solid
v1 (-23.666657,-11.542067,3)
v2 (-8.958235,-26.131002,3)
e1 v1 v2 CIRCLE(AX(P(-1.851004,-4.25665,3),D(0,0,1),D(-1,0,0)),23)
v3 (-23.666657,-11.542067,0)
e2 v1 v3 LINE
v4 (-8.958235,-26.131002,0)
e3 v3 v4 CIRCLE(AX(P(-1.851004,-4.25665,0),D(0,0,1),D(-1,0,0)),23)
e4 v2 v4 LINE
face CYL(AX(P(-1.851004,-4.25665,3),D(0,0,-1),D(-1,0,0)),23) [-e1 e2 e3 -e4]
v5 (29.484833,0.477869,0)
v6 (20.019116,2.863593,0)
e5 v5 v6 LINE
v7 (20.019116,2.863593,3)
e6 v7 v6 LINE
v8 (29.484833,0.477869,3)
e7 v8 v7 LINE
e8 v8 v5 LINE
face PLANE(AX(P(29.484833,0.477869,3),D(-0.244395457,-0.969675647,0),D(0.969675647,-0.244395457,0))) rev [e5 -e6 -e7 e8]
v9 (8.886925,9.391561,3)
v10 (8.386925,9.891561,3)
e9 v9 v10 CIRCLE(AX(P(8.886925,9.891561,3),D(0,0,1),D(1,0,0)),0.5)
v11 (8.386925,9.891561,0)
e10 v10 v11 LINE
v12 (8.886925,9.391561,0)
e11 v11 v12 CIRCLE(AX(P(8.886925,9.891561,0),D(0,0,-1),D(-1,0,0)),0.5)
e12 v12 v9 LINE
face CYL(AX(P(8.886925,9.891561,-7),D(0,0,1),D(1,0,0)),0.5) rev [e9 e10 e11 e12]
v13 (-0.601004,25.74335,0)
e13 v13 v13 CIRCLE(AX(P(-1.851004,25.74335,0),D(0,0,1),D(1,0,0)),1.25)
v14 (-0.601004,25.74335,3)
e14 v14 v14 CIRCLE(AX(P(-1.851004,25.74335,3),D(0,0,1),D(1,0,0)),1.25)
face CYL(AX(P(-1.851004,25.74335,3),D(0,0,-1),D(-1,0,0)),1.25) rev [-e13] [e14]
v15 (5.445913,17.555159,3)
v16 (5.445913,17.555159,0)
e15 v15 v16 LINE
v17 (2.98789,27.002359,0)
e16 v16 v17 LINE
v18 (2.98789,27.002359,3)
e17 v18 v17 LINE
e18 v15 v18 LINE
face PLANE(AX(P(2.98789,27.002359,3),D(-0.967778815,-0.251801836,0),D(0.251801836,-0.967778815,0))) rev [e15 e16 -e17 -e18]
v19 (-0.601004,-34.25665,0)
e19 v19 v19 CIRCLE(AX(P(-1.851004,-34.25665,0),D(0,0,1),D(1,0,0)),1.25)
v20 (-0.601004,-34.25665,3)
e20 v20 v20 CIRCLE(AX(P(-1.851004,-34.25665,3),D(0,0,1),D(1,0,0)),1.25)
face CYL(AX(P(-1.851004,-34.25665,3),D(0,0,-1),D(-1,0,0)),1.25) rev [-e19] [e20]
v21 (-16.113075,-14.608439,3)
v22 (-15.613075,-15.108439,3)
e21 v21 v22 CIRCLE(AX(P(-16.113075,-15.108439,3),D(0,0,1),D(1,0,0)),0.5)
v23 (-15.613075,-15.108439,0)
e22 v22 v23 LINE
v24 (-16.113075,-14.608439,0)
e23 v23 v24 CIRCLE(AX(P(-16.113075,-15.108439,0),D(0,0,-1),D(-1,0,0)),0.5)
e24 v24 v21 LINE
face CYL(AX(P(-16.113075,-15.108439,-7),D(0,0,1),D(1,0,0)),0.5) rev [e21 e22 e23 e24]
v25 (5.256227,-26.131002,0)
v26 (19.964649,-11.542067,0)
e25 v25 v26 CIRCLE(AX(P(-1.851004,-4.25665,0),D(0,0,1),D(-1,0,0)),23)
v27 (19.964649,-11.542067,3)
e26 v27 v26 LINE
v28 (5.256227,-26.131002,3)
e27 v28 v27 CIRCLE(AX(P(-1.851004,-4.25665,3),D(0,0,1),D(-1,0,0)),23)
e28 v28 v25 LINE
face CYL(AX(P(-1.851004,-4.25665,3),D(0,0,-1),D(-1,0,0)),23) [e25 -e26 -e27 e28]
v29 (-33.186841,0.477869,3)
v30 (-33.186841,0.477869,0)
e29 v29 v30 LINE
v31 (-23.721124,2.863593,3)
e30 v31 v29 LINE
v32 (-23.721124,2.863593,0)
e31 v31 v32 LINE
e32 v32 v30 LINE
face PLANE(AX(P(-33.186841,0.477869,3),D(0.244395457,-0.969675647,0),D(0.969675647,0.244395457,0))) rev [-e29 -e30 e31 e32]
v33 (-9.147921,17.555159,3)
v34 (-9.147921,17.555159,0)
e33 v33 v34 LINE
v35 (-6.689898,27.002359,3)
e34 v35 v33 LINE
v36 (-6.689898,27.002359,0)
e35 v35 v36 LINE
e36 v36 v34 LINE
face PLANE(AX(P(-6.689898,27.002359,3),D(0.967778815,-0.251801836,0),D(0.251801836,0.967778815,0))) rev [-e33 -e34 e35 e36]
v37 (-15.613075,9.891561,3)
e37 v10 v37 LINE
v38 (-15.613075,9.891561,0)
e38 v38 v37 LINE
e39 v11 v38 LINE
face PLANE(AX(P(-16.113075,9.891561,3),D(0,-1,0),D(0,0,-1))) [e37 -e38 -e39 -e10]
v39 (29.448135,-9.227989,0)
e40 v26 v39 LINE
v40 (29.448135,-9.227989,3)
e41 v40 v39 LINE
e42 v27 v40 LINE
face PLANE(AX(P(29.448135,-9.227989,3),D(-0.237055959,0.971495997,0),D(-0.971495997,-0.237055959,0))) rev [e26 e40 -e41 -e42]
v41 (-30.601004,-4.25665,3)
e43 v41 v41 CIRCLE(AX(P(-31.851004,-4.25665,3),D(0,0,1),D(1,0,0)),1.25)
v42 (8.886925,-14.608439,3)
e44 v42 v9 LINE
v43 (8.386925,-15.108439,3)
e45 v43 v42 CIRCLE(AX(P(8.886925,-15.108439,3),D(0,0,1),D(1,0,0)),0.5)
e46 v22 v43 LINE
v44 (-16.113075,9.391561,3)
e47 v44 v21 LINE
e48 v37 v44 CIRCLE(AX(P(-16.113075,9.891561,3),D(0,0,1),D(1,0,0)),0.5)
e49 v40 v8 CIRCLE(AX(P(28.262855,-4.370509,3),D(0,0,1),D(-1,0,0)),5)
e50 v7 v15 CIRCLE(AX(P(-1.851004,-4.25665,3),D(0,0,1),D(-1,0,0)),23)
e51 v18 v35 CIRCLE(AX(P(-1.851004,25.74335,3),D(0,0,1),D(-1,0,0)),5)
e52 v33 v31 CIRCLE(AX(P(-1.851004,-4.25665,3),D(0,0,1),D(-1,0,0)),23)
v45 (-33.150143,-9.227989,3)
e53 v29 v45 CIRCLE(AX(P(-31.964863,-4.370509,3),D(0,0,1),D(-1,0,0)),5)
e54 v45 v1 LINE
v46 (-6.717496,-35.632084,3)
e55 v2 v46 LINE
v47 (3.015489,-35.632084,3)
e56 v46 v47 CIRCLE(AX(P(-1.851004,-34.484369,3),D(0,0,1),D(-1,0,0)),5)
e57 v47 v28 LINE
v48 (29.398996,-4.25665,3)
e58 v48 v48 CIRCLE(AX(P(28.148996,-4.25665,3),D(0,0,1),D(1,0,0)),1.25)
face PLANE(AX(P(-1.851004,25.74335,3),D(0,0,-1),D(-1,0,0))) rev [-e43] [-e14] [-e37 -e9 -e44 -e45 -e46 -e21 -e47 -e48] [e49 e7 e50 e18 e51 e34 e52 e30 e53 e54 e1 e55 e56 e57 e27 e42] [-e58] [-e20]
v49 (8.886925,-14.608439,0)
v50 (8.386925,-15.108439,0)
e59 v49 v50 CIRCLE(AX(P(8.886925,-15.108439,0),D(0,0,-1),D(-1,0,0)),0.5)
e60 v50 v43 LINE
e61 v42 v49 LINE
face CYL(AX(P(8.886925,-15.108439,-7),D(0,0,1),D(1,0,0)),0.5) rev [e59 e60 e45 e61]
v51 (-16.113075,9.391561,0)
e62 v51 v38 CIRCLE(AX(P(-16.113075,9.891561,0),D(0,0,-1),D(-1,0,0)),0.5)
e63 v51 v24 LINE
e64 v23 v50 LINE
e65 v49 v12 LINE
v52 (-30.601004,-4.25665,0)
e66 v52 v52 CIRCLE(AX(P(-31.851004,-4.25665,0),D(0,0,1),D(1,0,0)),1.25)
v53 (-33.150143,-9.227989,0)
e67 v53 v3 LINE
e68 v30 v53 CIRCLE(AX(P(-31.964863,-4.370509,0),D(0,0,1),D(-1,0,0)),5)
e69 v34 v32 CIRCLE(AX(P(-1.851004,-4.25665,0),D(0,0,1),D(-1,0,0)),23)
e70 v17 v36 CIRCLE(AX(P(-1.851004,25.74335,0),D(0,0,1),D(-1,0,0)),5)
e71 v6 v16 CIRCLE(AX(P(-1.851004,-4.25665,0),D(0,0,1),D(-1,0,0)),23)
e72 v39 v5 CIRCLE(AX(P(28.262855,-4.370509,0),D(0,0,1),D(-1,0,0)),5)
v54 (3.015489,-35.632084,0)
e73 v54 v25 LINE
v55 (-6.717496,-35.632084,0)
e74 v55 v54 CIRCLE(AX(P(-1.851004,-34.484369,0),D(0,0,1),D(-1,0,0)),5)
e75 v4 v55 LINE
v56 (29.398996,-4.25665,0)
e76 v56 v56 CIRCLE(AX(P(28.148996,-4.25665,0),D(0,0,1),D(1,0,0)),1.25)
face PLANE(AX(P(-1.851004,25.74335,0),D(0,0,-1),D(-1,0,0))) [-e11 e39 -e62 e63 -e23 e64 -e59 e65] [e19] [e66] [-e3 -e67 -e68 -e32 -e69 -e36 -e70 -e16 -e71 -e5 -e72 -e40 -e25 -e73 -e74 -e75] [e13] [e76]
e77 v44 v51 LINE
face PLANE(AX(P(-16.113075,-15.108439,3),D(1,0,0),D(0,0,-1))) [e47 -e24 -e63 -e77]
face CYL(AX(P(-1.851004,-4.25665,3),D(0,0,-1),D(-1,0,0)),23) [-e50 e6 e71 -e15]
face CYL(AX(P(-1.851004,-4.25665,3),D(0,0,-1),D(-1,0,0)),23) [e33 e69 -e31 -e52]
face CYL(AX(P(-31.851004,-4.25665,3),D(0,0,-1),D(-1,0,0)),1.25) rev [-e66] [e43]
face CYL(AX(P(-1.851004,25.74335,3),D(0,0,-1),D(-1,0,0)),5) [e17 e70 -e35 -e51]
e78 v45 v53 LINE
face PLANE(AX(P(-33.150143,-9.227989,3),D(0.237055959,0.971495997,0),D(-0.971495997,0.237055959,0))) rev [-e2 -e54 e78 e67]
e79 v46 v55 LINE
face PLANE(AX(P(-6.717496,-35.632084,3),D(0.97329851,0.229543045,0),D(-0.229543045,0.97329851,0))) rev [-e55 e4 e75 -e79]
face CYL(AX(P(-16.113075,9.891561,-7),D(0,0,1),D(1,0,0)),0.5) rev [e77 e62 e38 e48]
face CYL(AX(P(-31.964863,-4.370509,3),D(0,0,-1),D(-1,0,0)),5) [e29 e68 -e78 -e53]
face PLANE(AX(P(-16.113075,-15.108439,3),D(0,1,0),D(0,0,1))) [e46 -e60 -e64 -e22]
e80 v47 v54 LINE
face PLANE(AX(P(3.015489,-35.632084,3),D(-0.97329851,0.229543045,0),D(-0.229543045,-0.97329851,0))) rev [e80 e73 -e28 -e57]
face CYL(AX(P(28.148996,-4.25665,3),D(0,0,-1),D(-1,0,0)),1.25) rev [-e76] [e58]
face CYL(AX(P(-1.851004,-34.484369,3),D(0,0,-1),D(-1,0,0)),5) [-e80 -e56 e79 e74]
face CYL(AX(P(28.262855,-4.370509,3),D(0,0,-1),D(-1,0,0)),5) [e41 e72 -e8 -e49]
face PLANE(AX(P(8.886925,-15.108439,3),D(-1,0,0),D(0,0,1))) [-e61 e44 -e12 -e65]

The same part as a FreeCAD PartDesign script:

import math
import FreeCAD as App
import Part
import Sketcher
from FreeCAD import Vector
Q = App.Units.Quantity


def add_polygon(sketch, points):
    """Adds a closed chain of lines whose ends are joined by coincident constraints."""
    first, n = sketch.GeometryCount, len(points)
    for a, b in zip(points, points[1:] + points[:1]):
        sketch.addGeometry(Part.LineSegment(App.Vector(*a, 0), App.Vector(*b, 0)), False)
    for i in range(n):
        sketch.addConstraint(Sketcher.Constraint("Coincident", first + i, 2, first + (i + 1) % n, 1))

doc = App.newDocument("Part")
body = doc.addObject("PartDesign::Body", "Body")

sketch1 = body.newObject("Sketcher::SketchObject", "Sketch")
sketch1.AttachmentSupport = (doc.getObject("XY_Plane"), [""])
sketch1.MapMode = "FlatFace"
sketch1.addGeometry(Part.LineSegment(Vector(-23.721124, 2.863593, 0), Vector(-33.186841, 0.477869, 0)), False)
sketch1.addGeometry(Part.ArcOfCircle(Part.Circle(Vector(-31.964863, -4.370509, 0), Vector(0, 0, 1), 5), math.radians(104.14611), math.radians(256.287154)), False)
sketch1.addGeometry(Part.LineSegment(Vector(-33.150143, -9.227989, 0), Vector(-23.666657, -11.542067, 0)), False)
sketch1.addGeometry(Part.ArcOfCircle(Part.Circle(Vector(-1.851004, -4.25665, 0), Vector(0, 0, 1), 23), math.radians(-161.53307), math.radians(-107.999581)), False)
sketch1.addGeometry(Part.LineSegment(Vector(-8.958235, -26.131002, 0), Vector(-6.717496, -35.632084, 0)), False)
sketch1.addGeometry(Part.ArcOfCircle(Part.Circle(Vector(-1.851004, -34.484369, 0), Vector(0, 0, 1), 5), math.radians(-166.72983), math.radians(-13.27017)), False)
sketch1.addGeometry(Part.LineSegment(Vector(3.015489, -35.632084, 0), Vector(5.256227, -26.131002, 0)), False)
sketch1.addGeometry(Part.ArcOfCircle(Part.Circle(Vector(-1.851004, -4.25665, 0), Vector(0, 0, 1), 23), math.radians(-72.000419), math.radians(-18.46693)), False)
sketch1.addGeometry(Part.LineSegment(Vector(19.964649, -11.542067, 0), Vector(29.448135, -9.227989, 0)), False)
sketch1.addGeometry(Part.ArcOfCircle(Part.Circle(Vector(28.262855, -4.370509, 0), Vector(0, 0, 1), 5), math.radians(-76.287154), math.radians(75.85389)), False)
sketch1.addGeometry(Part.LineSegment(Vector(29.484833, 0.477869, 0), Vector(20.019116, 2.863593, 0)), False)
sketch1.addGeometry(Part.ArcOfCircle(Part.Circle(Vector(-1.851004, -4.25665, 0), Vector(0, 0, 1), 23), math.radians(18.033666), math.radians(71.502864)), False)
sketch1.addGeometry(Part.LineSegment(Vector(5.445913, 17.555159, 0), Vector(2.98789, 27.002359, 0)), False)
sketch1.addGeometry(Part.ArcOfCircle(Part.Circle(Vector(-1.851004, 25.74335, 0), Vector(0, 0, 1), 5), math.radians(14.584161), math.radians(165.415839)), False)
sketch1.addGeometry(Part.LineSegment(Vector(-6.689898, 27.002359, 0), Vector(-9.147921, 17.555159, 0)), False)
sketch1.addGeometry(Part.ArcOfCircle(Part.Circle(Vector(-1.851004, -4.25665, 0), Vector(0, 0, 1), 23), math.radians(108.497136), math.radians(161.966334)), False)
sketch1.addGeometry(Part.Circle(Vector(28.148996, -4.25665, 0), Vector(0, 0, 1), 1.25), False)
sketch1.addGeometry(Part.Circle(Vector(-1.851004, -34.25665, 0), Vector(0, 0, 1), 1.25), False)
sketch1.addGeometry(Part.Circle(Vector(-31.851004, -4.25665, 0), Vector(0, 0, 1), 1.25), False)
add_polygon(sketch1, [(-16.113075, -15.108439), (-16.113075, 9.891561), (8.886925, 9.891561), (8.886925, -15.108439)])
sketch1.addGeometry(Part.Circle(Vector(-1.851004, 25.74335, 0), Vector(0, 0, 1), 1.25), False)
sketch1.addConstraint([
    Sketcher.Constraint("Tangent", 0, 2, 1, 1),
    Sketcher.Constraint("Tangent", 1, 2, 2, 1),
    Sketcher.Constraint("Coincident", 2, 2, 3, 1),
    Sketcher.Constraint("Coincident", 3, 2, 4, 1),
    Sketcher.Constraint("Tangent", 4, 2, 5, 1),
    Sketcher.Constraint("Tangent", 5, 2, 6, 1),
    Sketcher.Constraint("Coincident", 6, 2, 7, 1),
    Sketcher.Constraint("Coincident", 7, 2, 8, 1),
    Sketcher.Constraint("Tangent", 8, 2, 9, 1),
    Sketcher.Constraint("Tangent", 9, 2, 10, 1),
    Sketcher.Constraint("Coincident", 10, 2, 11, 1),
    Sketcher.Constraint("Coincident", 11, 2, 12, 1),
    Sketcher.Constraint("Tangent", 12, 2, 13, 1),
    Sketcher.Constraint("Tangent", 13, 2, 14, 1),
    Sketcher.Constraint("Coincident", 14, 2, 15, 1),
    Sketcher.Constraint("Coincident", 15, 2, 0, 1),
    Sketcher.Constraint("Vertical", 19),
    Sketcher.Constraint("Horizontal", 20),
    Sketcher.Constraint("Vertical", 21),
    Sketcher.Constraint("Horizontal", 22),
    Sketcher.Constraint("Coincident", 7, 3, 3, 3),
    Sketcher.Constraint("Coincident", 11, 3, 3, 3),
    Sketcher.Constraint("Coincident", 15, 3, 3, 3),
    Sketcher.Constraint("Coincident", 23, 3, 13, 3),
    Sketcher.Constraint("Equal", 1, 5),
    Sketcher.Constraint("Equal", 3, 7),
    Sketcher.Constraint("Equal", 5, 9),
    Sketcher.Constraint("Equal", 7, 11),
    Sketcher.Constraint("Equal", 9, 13),
    Sketcher.Constraint("Equal", 11, 15),
    Sketcher.Constraint("Equal", 16, 17),
    Sketcher.Constraint("Equal", 17, 18),
    Sketcher.Constraint("Equal", 18, 23),
    Sketcher.Constraint("Horizontal", 1, 3, 9, 3),
    Sketcher.Constraint("Horizontal", 15, 3, 16, 3),
    Sketcher.Constraint("Horizontal", 16, 3, 18, 3),
    Sketcher.Constraint("Horizontal", 4, 2, 5, 2),
    Sketcher.Constraint("Horizontal", 3, 2, 6, 2),
    Sketcher.Constraint("Horizontal", 2, 2, 7, 2),
    Sketcher.Constraint("Horizontal", 1, 2, 8, 2),
    Sketcher.Constraint("Horizontal", 0, 2, 9, 2),
    Sketcher.Constraint("Horizontal", 12, 2, 13, 2),
    Sketcher.Constraint("Horizontal", 11, 2, 14, 2),
    Sketcher.Constraint("Vertical", 15, 3, 17, 3),
    Sketcher.Constraint("Equal", 22, 19),
    Sketcher.Constraint("Equal", 0, 2),
    Sketcher.Constraint("Equal", 2, 4),
    Sketcher.Constraint("Equal", 10, 12),
    Sketcher.Constraint("Radius", 1, Q("5 mm")),
    Sketcher.Constraint("Radius", 3, Q("23 mm")),
    Sketcher.Constraint("Diameter", 16, Q("2.5 mm")),
    Sketcher.Constraint("DistanceX", 20, 1, 20, 2, Q("25 mm")),
    Sketcher.Constraint("DistanceY", 3, 3, 13, 3, Q("30 mm")),
    Sketcher.Constraint("DistanceX", 7, 3, 16, 3, Q("30 mm")),
    Sketcher.Constraint("DistanceY", 17, 3, 7, 3, Q("30 mm")),
    Sketcher.Constraint("DistanceX", 18, 3, 11, 3, Q("30 mm")),
    Sketcher.Constraint("DistanceY", 3, 2, -1, 1, Q("26.131002 mm")),
    Sketcher.Constraint("DistanceY", 9, 3, 10, 2, Q("7.234102 mm")),
    Sketcher.Constraint("DistanceY", 11, 2, 12, 2, Q("9.4472 mm")),
    Sketcher.Constraint("DistanceX", 6, 2, 21, 2, Q("3.630698 mm")),
    Sketcher.Constraint("DistanceY", 1, 3, -1, 1, Q("4.370509 mm")),
    Sketcher.Constraint("DistanceY", 3, 3, -1, 1, Q("4.25665 mm")),
    Sketcher.Constraint("DistanceX", 0, 2, -1, 1, Q("33.186841 mm")),
    Sketcher.Constraint("DistanceY", -1, 1, 19, 2, Q("9.891561 mm")),
])
pad1 = body.newObject("PartDesign::Pad", "Pad")
pad1.Profile = sketch1
pad1.Length = 3

sketch2 = body.newObject("Sketcher::SketchObject", "Sketch001")
sketch2.AttachmentSupport = (doc.getObject("XY_Plane"), [""])
sketch2.MapMode = "FlatFace"
sketch2.AttachmentOffset = App.Placement(Vector(0, 0, 3), App.Rotation())
sketch2.addGeometry([
    Part.Circle(Vector(-16.113075, 9.891561, 0), Vector(0, 0, 1), 0.5),
    Part.Circle(Vector(8.886925, 9.891561, 0), Vector(0, 0, 1), 0.5),
    Part.Circle(Vector(8.886925, -15.108439, 0), Vector(0, 0, 1), 0.5),
    Part.Circle(Vector(-16.113075, -15.108439, 0), Vector(0, 0, 1), 0.5),
], False)
sketch2.addConstraint([
    Sketcher.Constraint("Equal", 0, 1),
    Sketcher.Constraint("Equal", 1, 2),
    Sketcher.Constraint("Equal", 2, 3),
    Sketcher.Constraint("Horizontal", 0, 3, 1, 3),
    Sketcher.Constraint("Horizontal", 2, 3, 3, 3),
    Sketcher.Constraint("Vertical", 1, 3, 2, 3),
    Sketcher.Constraint("Vertical", 0, 3, 3, 3),
    Sketcher.Constraint("Diameter", 0, Q("1 mm")),
    Sketcher.Constraint("DistanceX", 0, 3, 1, 3, Q("25 mm")),
    Sketcher.Constraint("DistanceY", 2, 3, 1, 3, Q("25 mm")),
    Sketcher.Constraint("DistanceY", -1, 1, 0, 3, Q("9.891561 mm")),
    Sketcher.Constraint("DistanceX", 0, 3, -1, 1, Q("16.113075 mm")),
])
pocket1 = body.newObject("PartDesign::Pocket", "Pocket")
pocket1.Profile = sketch2
pocket1.Length = 10

doc.recompute()
